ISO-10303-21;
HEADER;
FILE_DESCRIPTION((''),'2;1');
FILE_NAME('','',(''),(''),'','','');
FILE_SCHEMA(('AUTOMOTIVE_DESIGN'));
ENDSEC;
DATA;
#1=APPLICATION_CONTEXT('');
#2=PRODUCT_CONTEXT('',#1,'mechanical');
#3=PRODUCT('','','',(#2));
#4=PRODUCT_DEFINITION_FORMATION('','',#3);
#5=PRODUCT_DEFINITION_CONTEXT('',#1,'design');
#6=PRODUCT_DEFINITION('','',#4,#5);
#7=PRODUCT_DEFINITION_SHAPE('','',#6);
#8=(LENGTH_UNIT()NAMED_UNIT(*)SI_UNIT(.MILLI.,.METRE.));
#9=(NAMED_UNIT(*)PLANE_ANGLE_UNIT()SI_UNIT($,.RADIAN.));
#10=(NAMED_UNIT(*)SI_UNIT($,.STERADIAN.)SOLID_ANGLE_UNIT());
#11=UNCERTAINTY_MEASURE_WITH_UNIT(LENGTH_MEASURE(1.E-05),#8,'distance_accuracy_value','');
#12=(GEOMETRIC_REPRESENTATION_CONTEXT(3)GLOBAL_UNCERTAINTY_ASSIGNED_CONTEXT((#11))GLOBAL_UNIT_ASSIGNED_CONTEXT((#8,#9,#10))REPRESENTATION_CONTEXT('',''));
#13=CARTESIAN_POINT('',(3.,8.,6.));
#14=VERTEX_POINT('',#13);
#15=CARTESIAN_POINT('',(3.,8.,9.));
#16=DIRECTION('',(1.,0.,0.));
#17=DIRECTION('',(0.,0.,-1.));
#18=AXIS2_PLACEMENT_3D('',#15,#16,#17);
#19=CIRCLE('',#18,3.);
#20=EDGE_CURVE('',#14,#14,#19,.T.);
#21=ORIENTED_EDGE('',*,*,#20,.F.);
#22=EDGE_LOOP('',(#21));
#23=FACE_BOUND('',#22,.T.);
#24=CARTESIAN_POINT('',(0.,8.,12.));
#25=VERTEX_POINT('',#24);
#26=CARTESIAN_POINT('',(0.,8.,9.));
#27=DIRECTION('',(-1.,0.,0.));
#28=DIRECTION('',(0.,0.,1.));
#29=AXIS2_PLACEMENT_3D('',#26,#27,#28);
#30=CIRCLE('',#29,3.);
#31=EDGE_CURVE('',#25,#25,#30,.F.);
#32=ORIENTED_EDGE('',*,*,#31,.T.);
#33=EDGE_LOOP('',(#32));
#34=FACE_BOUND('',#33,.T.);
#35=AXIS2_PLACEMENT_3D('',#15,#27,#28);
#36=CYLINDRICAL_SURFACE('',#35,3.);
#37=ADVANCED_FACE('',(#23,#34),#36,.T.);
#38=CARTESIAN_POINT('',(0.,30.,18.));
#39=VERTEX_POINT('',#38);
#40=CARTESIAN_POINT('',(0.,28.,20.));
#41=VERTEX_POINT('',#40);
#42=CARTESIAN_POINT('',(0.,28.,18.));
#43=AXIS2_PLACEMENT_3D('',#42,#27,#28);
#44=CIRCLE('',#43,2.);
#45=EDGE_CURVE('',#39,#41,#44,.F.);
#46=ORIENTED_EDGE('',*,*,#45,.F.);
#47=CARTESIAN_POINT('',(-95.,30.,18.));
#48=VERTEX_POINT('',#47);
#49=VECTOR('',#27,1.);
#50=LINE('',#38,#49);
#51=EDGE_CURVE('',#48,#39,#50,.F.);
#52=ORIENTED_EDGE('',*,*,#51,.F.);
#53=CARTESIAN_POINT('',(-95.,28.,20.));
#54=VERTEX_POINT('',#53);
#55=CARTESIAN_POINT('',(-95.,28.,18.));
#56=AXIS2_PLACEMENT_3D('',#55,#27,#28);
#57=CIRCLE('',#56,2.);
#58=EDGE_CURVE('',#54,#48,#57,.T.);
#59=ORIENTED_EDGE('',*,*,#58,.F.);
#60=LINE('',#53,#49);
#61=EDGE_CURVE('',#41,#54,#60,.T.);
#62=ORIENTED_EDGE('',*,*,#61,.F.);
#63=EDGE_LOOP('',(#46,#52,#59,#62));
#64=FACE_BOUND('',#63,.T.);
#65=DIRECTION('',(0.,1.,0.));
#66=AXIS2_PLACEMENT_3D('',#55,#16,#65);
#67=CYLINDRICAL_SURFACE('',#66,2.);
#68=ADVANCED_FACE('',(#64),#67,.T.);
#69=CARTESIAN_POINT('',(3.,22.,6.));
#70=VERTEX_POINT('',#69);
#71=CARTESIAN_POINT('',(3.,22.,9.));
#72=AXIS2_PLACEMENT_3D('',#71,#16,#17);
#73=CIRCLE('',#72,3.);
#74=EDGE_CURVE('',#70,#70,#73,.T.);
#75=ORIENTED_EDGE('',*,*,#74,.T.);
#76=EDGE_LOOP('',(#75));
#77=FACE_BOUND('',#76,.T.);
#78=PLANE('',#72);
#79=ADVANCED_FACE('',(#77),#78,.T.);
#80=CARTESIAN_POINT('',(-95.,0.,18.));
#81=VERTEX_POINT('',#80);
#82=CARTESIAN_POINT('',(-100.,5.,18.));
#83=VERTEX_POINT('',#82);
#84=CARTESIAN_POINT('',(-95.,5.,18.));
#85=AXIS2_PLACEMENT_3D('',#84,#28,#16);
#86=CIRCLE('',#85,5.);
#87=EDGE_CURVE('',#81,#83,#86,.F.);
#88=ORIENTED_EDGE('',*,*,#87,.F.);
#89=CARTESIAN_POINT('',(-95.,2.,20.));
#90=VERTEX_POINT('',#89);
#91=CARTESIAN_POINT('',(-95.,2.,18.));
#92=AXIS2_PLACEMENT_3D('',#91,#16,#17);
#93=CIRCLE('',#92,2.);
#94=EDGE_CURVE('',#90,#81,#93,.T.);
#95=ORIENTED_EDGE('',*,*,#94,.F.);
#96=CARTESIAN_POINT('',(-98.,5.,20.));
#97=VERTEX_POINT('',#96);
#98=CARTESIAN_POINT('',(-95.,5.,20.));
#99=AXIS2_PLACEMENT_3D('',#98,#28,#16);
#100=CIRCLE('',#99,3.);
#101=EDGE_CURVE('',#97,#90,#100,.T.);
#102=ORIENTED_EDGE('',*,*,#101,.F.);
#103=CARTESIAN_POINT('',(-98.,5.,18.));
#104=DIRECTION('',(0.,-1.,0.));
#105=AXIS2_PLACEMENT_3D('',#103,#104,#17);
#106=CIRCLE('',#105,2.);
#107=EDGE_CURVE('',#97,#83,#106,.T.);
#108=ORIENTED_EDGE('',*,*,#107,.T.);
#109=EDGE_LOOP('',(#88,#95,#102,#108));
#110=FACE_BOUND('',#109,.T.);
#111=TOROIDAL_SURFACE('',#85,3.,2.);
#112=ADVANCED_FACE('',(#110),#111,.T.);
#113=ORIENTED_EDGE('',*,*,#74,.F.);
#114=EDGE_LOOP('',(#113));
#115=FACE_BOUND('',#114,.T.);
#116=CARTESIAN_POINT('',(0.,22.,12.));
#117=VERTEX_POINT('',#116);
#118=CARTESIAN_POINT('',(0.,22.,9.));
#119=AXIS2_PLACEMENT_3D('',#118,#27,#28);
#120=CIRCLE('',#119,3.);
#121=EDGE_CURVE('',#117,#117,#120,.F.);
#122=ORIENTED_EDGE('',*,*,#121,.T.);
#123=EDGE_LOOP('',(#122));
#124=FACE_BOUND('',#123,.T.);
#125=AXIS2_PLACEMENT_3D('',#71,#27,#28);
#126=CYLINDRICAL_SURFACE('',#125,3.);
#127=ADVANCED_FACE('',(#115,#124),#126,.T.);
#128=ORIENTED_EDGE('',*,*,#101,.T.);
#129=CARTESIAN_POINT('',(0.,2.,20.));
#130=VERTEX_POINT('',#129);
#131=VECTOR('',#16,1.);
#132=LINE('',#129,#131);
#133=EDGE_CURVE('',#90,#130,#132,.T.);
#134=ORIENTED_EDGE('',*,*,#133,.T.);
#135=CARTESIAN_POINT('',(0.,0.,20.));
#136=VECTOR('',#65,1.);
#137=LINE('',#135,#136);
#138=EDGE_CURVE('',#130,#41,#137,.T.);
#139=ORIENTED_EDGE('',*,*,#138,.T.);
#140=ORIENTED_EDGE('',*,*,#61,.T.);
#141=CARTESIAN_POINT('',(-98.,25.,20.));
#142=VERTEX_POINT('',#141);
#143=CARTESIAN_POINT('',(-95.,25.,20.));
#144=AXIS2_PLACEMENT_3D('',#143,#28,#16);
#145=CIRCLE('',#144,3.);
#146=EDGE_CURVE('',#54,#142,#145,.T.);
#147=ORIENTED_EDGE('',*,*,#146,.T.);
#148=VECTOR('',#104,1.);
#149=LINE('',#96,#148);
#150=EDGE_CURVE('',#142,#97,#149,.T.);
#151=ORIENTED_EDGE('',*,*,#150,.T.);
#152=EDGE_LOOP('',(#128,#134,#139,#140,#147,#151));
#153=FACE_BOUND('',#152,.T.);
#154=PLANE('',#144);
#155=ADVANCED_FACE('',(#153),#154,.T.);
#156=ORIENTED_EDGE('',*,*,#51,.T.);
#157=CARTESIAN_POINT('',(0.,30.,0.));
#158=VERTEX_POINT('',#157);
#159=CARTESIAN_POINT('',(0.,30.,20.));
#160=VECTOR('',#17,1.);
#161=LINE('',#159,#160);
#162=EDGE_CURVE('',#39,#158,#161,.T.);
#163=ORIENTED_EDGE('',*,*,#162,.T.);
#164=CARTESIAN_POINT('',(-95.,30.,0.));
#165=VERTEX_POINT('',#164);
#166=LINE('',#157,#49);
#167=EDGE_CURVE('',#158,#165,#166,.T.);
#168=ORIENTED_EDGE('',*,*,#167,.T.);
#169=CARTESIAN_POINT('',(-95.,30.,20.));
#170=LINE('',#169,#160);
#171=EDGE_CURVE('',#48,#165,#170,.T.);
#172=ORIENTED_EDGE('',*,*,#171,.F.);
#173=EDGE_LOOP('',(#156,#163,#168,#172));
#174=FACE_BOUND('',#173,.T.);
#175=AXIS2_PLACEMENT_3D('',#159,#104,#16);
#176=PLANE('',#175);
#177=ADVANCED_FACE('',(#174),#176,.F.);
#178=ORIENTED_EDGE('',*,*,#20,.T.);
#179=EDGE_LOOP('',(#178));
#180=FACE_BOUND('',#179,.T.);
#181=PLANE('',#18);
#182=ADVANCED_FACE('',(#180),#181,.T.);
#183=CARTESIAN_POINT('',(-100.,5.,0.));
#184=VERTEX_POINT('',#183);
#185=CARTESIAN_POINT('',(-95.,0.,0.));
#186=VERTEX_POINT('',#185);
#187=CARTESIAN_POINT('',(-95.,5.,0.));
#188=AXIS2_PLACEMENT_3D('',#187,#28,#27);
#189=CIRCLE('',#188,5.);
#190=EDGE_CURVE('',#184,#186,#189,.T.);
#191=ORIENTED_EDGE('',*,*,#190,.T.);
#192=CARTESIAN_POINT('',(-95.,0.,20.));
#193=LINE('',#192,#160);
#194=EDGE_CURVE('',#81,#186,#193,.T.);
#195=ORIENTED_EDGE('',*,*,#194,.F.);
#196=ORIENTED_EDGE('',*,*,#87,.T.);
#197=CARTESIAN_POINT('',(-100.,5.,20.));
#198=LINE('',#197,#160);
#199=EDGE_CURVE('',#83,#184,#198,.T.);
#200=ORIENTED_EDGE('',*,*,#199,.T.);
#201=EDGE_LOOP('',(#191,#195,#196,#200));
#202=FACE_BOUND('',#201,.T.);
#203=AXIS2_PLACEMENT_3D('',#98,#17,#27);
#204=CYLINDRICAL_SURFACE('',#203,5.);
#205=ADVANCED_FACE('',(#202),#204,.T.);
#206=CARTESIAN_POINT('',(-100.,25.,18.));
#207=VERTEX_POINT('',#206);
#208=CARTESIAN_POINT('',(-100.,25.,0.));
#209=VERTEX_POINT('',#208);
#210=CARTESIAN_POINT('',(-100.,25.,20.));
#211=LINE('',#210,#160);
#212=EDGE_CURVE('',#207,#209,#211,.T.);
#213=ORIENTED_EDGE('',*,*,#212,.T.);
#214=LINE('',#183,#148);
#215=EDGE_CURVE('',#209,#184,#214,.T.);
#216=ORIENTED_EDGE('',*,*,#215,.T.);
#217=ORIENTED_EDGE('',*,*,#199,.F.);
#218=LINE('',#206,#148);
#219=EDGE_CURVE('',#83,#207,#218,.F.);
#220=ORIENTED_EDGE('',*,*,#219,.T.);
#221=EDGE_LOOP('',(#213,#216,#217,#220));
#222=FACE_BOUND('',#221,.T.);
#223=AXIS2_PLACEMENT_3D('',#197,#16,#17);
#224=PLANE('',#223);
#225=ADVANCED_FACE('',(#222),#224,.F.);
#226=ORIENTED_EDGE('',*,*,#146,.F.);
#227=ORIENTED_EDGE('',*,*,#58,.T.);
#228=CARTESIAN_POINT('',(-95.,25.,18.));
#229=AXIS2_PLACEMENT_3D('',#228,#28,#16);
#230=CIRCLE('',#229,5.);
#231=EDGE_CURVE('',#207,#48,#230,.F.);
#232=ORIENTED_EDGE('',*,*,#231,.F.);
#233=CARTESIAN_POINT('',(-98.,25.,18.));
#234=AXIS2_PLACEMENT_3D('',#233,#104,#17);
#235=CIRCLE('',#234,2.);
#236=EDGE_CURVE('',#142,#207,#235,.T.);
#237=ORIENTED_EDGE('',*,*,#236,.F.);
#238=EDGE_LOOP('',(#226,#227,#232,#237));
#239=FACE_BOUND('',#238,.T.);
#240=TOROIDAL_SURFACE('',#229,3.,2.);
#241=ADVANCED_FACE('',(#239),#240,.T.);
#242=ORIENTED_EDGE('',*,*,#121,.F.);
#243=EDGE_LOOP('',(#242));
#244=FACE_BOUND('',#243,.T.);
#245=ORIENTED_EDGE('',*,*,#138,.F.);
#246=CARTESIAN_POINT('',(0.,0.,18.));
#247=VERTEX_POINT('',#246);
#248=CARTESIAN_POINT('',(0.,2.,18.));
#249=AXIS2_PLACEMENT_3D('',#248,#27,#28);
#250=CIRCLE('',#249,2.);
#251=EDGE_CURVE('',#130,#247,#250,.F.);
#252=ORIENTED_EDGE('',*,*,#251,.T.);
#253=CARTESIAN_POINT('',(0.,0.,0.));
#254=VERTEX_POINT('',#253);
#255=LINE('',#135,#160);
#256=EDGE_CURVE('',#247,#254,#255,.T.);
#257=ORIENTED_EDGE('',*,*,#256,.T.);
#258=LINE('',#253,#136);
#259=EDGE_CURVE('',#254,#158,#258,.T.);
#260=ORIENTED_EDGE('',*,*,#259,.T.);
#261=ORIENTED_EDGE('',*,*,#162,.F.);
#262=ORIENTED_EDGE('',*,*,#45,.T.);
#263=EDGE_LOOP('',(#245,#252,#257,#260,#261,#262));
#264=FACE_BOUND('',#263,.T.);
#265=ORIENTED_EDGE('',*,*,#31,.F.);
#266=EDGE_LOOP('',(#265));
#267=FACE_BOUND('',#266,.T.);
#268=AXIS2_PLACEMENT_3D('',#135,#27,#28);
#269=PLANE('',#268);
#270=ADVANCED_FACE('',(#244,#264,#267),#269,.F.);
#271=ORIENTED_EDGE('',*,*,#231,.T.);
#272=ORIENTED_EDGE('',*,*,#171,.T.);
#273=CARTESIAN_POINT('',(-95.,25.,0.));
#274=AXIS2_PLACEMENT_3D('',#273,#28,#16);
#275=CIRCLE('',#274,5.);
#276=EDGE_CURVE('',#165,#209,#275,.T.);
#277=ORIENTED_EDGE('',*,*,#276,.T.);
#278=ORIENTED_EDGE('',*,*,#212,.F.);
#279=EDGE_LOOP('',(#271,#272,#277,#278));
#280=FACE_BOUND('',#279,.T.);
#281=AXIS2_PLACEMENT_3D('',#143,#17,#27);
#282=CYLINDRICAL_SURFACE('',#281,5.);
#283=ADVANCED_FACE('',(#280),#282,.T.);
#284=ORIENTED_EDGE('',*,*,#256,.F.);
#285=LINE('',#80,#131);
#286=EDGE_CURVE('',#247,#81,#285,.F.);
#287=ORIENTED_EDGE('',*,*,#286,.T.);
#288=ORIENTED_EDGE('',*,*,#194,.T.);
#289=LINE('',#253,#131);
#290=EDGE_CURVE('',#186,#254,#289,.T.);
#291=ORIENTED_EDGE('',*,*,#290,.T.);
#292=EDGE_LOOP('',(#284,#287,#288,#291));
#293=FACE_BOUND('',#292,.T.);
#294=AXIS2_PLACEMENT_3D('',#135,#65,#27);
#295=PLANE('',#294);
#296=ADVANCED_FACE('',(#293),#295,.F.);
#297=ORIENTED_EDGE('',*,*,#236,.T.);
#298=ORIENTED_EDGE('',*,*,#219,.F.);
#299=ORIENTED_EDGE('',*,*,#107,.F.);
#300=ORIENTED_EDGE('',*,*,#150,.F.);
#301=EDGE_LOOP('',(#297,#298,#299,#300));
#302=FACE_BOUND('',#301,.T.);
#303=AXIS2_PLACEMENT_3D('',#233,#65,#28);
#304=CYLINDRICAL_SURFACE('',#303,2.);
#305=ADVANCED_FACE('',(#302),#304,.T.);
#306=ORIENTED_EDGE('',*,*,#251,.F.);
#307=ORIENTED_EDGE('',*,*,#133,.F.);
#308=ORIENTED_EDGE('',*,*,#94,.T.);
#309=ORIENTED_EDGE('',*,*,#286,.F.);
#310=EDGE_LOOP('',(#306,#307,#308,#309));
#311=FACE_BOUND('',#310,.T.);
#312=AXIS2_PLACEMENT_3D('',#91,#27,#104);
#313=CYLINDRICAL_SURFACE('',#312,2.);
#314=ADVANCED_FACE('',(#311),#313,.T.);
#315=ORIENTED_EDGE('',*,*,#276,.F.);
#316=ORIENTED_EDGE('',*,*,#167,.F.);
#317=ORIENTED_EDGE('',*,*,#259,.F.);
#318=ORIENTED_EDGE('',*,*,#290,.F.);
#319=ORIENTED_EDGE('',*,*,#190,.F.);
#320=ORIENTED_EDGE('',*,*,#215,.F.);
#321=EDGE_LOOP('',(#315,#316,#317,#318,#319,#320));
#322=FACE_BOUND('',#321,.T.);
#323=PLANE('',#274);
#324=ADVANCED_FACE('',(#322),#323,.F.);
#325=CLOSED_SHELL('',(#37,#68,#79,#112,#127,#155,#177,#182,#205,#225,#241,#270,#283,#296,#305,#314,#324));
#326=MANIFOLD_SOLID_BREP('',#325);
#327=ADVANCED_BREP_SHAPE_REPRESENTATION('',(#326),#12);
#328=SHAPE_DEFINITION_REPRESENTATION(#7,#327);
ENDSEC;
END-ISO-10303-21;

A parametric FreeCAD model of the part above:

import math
import FreeCAD as App
import Part
import Sketcher
Q = App.Units.Quantity


def edges_at(feature, points):
    """Names of the edges that pass closest to the given points."""
    edges = feature.Shape.Edges
    near = lambda p: min(range(len(edges)), key=lambda i: edges[i].distToShape(Part.Vertex(*p))[0])
    return sorted({f"Edge{near(p) + 1}" for p in points})

doc = App.newDocument("Part")
body = doc.addObject("PartDesign::Body", "Body")

sketch1 = doc.addObject("Sketcher::SketchObject", "Sketch")
body.addObject(sketch1)
sketch1.AttachmentSupport = (doc.XY_Plane, [""])
sketch1.MapMode = "FlatFace"
sketch1.addGeometry(Part.LineSegment(App.Vector(-95, 0, 0), App.Vector(0, 0, 0)), False)
sketch1.addGeometry(Part.LineSegment(App.Vector(0, 0, 0), App.Vector(0, 30, 0)), False)
sketch1.addGeometry(Part.LineSegment(App.Vector(0, 30, 0), App.Vector(-95, 30, 0)), False)
sketch1.addGeometry(Part.ArcOfCircle(Part.Circle(App.Vector(-95, 25, 0), App.Vector(0, 0, 1), 5), math.radians(90), math.radians(180)), False)
sketch1.addGeometry(Part.LineSegment(App.Vector(-100, 25, 0), App.Vector(-100, 5, 0)), False)
sketch1.addGeometry(Part.ArcOfCircle(Part.Circle(App.Vector(-95, 5, 0), App.Vector(0, 0, 1), 5), math.radians(180), math.radians(270)), False)
sketch1.addConstraint(Sketcher.Constraint("Coincident", 0, 2, 1, 1))
sketch1.addConstraint(Sketcher.Constraint("Coincident", 1, 2, 2, 1))
sketch1.addConstraint(Sketcher.Constraint("Tangent", 2, 2, 3, 1))
sketch1.addConstraint(Sketcher.Constraint("Tangent", 3, 2, 4, 1))
sketch1.addConstraint(Sketcher.Constraint("Tangent", 4, 2, 5, 1))
sketch1.addConstraint(Sketcher.Constraint("Tangent", 5, 2, 0, 1))
sketch1.addConstraint(Sketcher.Constraint("Horizontal", 0))
sketch1.addConstraint(Sketcher.Constraint("Vertical", 1))
sketch1.addConstraint(Sketcher.Constraint("Horizontal", 2))
sketch1.addConstraint(Sketcher.Constraint("Vertical", 4))
sketch1.addConstraint(Sketcher.Constraint("Coincident", 0, 2, -1, 1))
sketch1.addConstraint(Sketcher.Constraint("Equal", 3, 5))
sketch1.addConstraint(Sketcher.Constraint("Radius", 3, Q("5 mm")))
sketch1.addConstraint(Sketcher.Constraint("DistanceX", 0, 1, 0, 2, Q("95 mm")))
sketch1.addConstraint(Sketcher.Constraint("DistanceY", 1, 1, 1, 2, Q("30 mm")))
pad1 = doc.addObject("PartDesign::Pad", "Pad")
body.addObject(pad1)
pad1.Profile = sketch1
pad1.Length = 20

sketch2 = doc.addObject("Sketcher::SketchObject", "Sketch001")
body.addObject(sketch2)
sketch2.AttachmentSupport = (doc.YZ_Plane, [""])
sketch2.MapMode = "FlatFace"
sketch2.addGeometry(Part.Circle(App.Vector(22, 9, 0), App.Vector(0, 0, 1), 3), False)
sketch2.addGeometry(Part.Circle(App.Vector(8, 9, 0), App.Vector(0, 0, 1), 3), False)
sketch2.addConstraint(Sketcher.Constraint("Equal", 0, 1))
sketch2.addConstraint(Sketcher.Constraint("Horizontal", 0, 3, 1, 3))
sketch2.addConstraint(Sketcher.Constraint("Diameter", 0, Q("6 mm")))
sketch2.addConstraint(Sketcher.Constraint("DistanceX", -1, 1, 0, 3, Q("22 mm")))
sketch2.addConstraint(Sketcher.Constraint("DistanceY", -1, 1, 0, 3, Q("9 mm")))
sketch2.addConstraint(Sketcher.Constraint("DistanceX", -1, 1, 1, 3, Q("8 mm")))
pad2 = doc.addObject("PartDesign::Pad", "Pad001")
body.addObject(pad2)
pad2.Profile = sketch2
pad2.Length = 3
doc.recompute()

fillet = doc.addObject("PartDesign::Fillet", "Fillet")
body.addObject(fillet)
fillet.Base = (pad2, edges_at(pad2, [
    (-98.536, 28.536, 20),
    (-100, 15, 20),
    (-98.536, 1.464, 20),
    (-47.5, 0, 20),
    (-47.5, 30, 20),
]))
fillet.Radius = 2

doc.recompute()
